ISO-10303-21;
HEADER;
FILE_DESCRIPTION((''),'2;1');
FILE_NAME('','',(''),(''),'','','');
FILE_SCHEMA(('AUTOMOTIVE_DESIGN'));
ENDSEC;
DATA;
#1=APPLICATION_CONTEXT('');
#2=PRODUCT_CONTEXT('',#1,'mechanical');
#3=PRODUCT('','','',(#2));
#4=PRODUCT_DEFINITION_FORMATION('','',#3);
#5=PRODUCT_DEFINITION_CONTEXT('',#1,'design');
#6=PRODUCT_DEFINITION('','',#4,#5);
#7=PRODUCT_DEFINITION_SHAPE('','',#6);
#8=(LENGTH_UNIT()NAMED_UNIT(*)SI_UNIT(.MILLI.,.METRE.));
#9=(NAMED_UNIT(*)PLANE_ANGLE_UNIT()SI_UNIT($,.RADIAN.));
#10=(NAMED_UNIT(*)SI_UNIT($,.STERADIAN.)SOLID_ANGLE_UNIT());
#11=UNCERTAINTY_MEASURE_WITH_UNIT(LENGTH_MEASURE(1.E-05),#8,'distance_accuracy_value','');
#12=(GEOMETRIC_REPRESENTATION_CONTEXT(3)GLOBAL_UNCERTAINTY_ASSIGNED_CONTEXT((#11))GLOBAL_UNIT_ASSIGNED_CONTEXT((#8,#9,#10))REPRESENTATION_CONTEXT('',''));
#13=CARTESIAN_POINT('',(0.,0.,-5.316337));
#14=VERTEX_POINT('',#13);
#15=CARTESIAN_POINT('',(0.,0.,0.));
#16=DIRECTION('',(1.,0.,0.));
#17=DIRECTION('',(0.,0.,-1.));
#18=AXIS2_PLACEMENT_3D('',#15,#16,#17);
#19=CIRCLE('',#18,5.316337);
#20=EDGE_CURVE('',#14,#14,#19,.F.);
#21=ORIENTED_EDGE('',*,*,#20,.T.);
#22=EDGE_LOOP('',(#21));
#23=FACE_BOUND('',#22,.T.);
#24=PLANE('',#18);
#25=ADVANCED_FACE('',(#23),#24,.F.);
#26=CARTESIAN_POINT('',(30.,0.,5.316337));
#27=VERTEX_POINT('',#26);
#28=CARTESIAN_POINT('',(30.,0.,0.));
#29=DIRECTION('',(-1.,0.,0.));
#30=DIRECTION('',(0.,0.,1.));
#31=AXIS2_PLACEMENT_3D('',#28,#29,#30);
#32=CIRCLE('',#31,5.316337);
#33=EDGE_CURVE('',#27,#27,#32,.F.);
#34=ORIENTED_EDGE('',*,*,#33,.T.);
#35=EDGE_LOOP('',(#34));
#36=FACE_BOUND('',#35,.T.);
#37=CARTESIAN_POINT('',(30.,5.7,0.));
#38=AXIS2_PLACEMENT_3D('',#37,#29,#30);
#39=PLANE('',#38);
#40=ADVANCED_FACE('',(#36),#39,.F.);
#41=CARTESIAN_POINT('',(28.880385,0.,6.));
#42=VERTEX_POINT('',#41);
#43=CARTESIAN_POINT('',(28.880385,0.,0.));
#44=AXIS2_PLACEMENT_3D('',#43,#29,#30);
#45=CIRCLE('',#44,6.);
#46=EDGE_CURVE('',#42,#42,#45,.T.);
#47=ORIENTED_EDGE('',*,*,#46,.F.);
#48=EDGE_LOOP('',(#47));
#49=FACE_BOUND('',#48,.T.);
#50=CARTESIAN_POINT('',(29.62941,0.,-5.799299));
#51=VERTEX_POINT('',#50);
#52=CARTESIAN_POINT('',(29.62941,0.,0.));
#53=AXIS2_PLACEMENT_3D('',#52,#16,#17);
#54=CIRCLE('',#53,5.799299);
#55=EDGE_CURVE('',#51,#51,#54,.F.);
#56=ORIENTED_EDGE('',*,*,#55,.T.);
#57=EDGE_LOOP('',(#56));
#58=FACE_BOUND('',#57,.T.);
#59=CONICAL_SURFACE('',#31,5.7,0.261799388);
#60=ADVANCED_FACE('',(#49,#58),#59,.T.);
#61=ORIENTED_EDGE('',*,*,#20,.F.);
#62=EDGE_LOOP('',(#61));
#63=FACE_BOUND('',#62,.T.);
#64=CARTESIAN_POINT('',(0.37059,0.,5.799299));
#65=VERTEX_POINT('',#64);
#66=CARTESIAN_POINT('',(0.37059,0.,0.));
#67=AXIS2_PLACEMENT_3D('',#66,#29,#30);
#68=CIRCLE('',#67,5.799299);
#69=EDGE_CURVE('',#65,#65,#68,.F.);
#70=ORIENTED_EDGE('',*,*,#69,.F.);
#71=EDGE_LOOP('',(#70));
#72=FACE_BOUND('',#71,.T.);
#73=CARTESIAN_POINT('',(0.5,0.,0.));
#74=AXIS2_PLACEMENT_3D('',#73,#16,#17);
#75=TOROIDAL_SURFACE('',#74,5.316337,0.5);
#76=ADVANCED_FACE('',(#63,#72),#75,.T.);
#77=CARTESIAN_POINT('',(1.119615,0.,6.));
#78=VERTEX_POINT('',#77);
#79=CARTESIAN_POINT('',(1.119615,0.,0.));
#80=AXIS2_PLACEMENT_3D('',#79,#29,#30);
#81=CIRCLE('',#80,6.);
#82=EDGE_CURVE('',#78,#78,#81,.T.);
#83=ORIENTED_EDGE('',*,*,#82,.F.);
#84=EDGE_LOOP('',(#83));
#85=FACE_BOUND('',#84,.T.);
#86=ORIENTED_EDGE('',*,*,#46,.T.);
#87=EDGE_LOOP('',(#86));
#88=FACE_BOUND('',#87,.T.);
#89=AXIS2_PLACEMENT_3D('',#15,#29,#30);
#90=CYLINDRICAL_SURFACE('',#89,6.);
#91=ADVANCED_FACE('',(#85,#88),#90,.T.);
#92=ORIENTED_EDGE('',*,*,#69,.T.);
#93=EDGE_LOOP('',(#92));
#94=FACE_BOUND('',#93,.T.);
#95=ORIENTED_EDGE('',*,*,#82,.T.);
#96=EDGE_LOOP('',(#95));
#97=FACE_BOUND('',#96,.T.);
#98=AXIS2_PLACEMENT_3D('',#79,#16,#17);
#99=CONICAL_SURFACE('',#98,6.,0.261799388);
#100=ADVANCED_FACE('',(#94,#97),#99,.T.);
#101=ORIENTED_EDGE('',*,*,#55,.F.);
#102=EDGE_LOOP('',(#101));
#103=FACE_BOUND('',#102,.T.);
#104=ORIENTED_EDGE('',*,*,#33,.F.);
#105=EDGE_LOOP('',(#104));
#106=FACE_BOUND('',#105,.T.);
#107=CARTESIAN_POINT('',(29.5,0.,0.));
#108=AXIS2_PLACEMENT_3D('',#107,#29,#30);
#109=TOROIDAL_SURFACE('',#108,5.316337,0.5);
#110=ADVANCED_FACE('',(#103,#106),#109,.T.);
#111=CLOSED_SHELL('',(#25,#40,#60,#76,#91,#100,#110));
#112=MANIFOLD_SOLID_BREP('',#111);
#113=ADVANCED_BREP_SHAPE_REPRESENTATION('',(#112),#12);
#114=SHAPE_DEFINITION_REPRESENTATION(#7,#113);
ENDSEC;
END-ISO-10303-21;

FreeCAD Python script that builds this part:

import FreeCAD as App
import Part
import Sketcher
from FreeCAD import Vector
Q = App.Units.Quantity


def edges_at(feature, points):
    """Names of the edges that pass closest to the given points."""
    edges = feature.Shape.Edges
    near = lambda p: min(range(len(edges)), key=lambda i: edges[i].distToShape(Part.Vertex(*p))[0])
    return sorted({f"Edge{near(p) + 1}" for p in points})

doc = App.newDocument("Part")
body = doc.addObject("PartDesign::Body", "Body")

# Sketch on XY plane
sketch1 = body.newObject("Sketcher::SketchObject", "Sketch")
sketch1.AttachmentSupport = (doc.getObject("XY_Plane"), [""])
sketch1.MapMode = "FlatFace"
sketch1.addGeometry([
    Part.LineSegment(Vector(0, 5.7, 0), Vector(0, 0, 0)),  # 0
    Part.LineSegment(Vector(0, 0, 0), Vector(30, 0, 0)),  # 1
    Part.LineSegment(Vector(30, 0, 0), Vector(30, 5.7, 0)),  # 2
    Part.LineSegment(Vector(30, 5.7, 0), Vector(28.880385, 6, 0)),  # 3
    Part.LineSegment(Vector(28.880385, 6, 0), Vector(1.119615, 6, 0)),  # 4
    Part.LineSegment(Vector(1.119615, 6, 0), Vector(0, 5.7, 0)),  # 5
], False)
sketch1.addConstraint([
    Sketcher.Constraint("Coincident", 0, 2, 1, 1),
    Sketcher.Constraint("Coincident", 1, 2, 2, 1),
    Sketcher.Constraint("Coincident", 2, 2, 3, 1),
    Sketcher.Constraint("Coincident", 3, 2, 4, 1),
    Sketcher.Constraint("Coincident", 4, 2, 5, 1),
    Sketcher.Constraint("Coincident", 5, 2, 0, 1),
    Sketcher.Constraint("Vertical", 0),
    Sketcher.Constraint("Horizontal", 1),
    Sketcher.Constraint("Vertical", 2),
    Sketcher.Constraint("Horizontal", 4),
    Sketcher.Constraint("Coincident", 0, 2, -1, 1),
    Sketcher.Constraint("Horizontal", 2, 2, 5, 2),
    Sketcher.Constraint("Equal", 3, 5),
    Sketcher.Constraint("DistanceX", 1, 1, 1, 2, Q("30 mm")),
    Sketcher.Constraint("Angle", 3, Q("165 deg")),
    Sketcher.Constraint("DistanceY", 0, 2, 0, 1, Q("5.7 mm")),
    Sketcher.Constraint("DistanceY", -1, 1, 3, 2, Q("6 mm")),
])
revolution = body.newObject("PartDesign::Revolution", "Revolution")
revolution.Profile = sketch1
revolution.ReferenceAxis = (sketch1, ["H_Axis"])
revolution.Angle = 360
doc.recompute()

fillet = body.newObject("PartDesign::Fillet", "Fillet")
fillet.Base = (revolution, edges_at(revolution, [(30, 0, -5.7), (0, 0, -5.7)]))
fillet.Radius = 0.5

doc.recompute()
